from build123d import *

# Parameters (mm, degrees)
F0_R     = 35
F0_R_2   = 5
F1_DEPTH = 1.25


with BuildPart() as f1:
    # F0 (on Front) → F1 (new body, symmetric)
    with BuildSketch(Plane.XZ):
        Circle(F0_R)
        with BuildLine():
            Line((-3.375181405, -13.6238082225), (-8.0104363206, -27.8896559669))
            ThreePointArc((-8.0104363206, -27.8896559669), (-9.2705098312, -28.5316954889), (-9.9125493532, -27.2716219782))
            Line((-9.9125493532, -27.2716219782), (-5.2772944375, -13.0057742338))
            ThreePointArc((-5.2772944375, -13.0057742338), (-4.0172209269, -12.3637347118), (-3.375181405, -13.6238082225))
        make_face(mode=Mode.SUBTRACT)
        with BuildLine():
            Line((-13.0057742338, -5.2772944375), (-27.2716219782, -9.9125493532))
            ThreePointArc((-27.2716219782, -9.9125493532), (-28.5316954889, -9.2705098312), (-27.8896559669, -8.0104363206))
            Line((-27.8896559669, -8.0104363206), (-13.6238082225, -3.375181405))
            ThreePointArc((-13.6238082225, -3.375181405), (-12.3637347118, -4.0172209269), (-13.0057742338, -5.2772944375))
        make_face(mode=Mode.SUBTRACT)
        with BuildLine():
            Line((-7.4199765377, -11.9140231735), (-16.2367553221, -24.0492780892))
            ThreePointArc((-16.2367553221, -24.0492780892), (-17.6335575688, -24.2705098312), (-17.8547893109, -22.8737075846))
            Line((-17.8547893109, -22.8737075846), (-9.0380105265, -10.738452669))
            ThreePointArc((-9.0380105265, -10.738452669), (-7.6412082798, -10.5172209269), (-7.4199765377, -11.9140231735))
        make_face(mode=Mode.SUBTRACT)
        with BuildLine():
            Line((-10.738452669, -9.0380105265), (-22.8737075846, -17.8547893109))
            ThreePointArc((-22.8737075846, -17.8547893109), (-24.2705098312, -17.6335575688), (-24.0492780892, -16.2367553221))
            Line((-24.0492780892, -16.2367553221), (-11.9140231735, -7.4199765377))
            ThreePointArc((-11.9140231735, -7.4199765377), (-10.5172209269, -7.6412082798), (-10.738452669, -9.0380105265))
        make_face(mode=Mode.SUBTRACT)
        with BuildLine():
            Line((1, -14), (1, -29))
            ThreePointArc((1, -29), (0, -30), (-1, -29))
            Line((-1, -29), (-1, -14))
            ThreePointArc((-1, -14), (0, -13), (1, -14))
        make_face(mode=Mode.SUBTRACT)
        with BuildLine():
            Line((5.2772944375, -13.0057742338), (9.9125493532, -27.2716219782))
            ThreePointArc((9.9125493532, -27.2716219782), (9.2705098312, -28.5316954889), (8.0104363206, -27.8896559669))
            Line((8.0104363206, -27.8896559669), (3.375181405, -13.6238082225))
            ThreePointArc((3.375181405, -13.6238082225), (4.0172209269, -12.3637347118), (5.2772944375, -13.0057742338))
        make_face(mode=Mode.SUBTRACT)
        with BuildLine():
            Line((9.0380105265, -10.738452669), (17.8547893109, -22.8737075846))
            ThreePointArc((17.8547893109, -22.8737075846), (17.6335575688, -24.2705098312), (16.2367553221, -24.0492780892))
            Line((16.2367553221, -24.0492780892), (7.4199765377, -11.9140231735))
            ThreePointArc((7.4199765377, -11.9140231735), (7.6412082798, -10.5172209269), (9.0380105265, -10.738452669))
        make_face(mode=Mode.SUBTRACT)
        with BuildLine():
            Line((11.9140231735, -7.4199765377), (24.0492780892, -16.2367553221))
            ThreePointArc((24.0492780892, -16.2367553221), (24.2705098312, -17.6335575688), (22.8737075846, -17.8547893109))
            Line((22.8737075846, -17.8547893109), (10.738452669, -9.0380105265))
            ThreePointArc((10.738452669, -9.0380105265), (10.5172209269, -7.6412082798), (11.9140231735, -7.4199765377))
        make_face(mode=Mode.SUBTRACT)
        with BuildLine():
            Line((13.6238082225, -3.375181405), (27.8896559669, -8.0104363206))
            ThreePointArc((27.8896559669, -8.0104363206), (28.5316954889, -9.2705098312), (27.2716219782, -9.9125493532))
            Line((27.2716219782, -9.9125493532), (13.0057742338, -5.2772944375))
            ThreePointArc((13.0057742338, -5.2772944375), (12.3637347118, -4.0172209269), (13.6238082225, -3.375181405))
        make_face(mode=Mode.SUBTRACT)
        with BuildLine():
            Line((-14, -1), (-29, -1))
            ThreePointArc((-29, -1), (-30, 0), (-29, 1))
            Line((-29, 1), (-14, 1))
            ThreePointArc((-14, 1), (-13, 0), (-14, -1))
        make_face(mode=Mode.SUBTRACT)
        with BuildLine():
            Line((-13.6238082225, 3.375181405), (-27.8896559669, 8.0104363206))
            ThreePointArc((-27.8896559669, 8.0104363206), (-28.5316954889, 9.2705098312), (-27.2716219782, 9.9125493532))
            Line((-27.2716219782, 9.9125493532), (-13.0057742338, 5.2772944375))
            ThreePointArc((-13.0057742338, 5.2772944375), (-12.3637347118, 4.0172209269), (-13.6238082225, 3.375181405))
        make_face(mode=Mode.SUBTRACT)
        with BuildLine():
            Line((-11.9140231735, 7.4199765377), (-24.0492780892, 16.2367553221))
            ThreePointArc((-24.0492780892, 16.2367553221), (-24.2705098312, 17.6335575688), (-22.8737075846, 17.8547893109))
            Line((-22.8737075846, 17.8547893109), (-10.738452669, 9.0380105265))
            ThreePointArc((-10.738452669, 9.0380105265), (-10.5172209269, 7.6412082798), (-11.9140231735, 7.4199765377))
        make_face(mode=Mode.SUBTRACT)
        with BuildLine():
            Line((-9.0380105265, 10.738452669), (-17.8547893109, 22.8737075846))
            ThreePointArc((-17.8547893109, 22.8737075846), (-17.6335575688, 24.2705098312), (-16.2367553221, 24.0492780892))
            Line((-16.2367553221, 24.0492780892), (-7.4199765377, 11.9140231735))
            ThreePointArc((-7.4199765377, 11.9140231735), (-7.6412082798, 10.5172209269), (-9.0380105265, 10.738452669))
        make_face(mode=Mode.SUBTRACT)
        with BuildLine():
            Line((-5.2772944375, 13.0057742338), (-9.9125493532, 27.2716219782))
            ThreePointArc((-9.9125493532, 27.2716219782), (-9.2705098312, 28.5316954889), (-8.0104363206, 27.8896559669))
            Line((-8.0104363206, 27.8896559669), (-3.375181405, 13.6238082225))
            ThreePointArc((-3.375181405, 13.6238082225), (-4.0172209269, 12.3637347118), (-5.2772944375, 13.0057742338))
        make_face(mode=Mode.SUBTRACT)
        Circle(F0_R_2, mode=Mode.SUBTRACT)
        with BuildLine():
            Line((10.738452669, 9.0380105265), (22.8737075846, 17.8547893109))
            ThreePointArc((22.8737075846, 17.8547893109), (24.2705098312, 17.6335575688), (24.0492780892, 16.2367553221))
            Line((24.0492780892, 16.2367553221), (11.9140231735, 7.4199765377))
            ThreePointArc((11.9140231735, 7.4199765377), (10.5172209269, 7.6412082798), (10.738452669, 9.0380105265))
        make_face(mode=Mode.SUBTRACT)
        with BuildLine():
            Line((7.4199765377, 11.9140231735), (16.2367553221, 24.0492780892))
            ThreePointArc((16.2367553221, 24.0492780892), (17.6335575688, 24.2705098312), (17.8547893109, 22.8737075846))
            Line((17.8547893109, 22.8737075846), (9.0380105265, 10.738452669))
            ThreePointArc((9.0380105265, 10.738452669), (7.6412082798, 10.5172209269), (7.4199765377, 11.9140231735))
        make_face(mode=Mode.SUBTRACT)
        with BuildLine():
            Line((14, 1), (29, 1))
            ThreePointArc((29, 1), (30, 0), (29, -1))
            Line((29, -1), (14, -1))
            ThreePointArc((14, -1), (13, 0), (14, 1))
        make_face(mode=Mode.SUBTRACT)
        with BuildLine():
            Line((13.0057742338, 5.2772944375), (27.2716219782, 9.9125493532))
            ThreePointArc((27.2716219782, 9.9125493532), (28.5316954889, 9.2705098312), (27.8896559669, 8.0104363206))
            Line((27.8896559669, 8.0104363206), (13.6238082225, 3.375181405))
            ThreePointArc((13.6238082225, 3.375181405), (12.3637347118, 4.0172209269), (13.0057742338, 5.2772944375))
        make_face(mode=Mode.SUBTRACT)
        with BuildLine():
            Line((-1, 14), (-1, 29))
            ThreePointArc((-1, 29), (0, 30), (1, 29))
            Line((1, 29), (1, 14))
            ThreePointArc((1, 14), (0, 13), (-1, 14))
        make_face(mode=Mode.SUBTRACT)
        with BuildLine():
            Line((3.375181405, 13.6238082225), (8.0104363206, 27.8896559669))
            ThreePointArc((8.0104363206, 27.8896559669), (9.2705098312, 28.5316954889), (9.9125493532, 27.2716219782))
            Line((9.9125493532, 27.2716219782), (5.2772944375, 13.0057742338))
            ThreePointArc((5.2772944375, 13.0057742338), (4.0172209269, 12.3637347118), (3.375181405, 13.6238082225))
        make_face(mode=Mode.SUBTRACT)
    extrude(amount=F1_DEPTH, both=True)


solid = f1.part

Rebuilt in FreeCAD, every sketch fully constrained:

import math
import FreeCAD as App
import Part
import Sketcher
from FreeCAD import Vector
Q = App.Units.Quantity

doc = App.newDocument("Part")
body = doc.addObject("PartDesign::Body", "Body")

sketch1 = body.newObject("Sketcher::SketchObject", "Sketch")
sketch1.AttachmentSupport = (doc.getObject("XZ_Plane"), [""])
sketch1.MapMode = "FlatFace"
sketch1.addGeometry([
    Part.Circle(Vector(0, 0, 0), Vector(0, 0, 1), 35),
    Part.ArcOfCircle(Part.Circle(Vector(-8.228994, -11.326238, 0), Vector(0, 0, 1), 1), math.radians(-36), math.radians(144)),
    Part.LineSegment(Vector(-7.419977, -11.914023, 0), Vector(-16.236755, -24.049278, 0)),
    Part.ArcOfCircle(Part.Circle(Vector(-17.045772, -23.461493, 0), Vector(0, 0, 1), 1), math.radians(144), math.radians(324)),
    Part.LineSegment(Vector(-17.854789, -22.873708, 0), Vector(-9.038011, -10.738453, 0)),
    Part.ArcOfCircle(Part.Circle(Vector(-4.326238, -13.314791, 0), Vector(0, 0, 1), 1), math.radians(-18), math.radians(162)),
    Part.LineSegment(Vector(-3.375181, -13.623808, 0), Vector(-8.010436, -27.889656, 0)),
    Part.ArcOfCircle(Part.Circle(Vector(-8.961493, -27.580639, 0), Vector(0, 0, 1), 1), math.radians(162), math.radians(342)),
    Part.LineSegment(Vector(-9.912549, -27.271622, 0), Vector(-5.277294, -13.005774, 0)),
    Part.ArcOfCircle(Part.Circle(Vector(-11.326238, -8.228994, 0), Vector(0, 0, 1), 1), math.radians(-54), math.radians(126)),
    Part.LineSegment(Vector(-10.738453, -9.038011, 0), Vector(-22.873708, -17.854789, 0)),
    Part.ArcOfCircle(Part.Circle(Vector(-23.461493, -17.045772, 0), Vector(0, 0, 1), 1), math.radians(126), math.radians(306)),
    Part.LineSegment(Vector(-24.049278, -16.236755, 0), Vector(-11.914023, -7.419977, 0)),
    Part.ArcOfCircle(Part.Circle(Vector(-13.314791, -4.326238, 0), Vector(0, 0, 1), 1), math.radians(-72), math.radians(108)),
    Part.LineSegment(Vector(-13.005774, -5.277294, 0), Vector(-27.271622, -9.912549, 0)),
    Part.ArcOfCircle(Part.Circle(Vector(-27.580639, -8.961493, 0), Vector(0, 0, 1), 1), math.radians(108), math.radians(288)),
    Part.LineSegment(Vector(-27.889656, -8.010436, 0), Vector(-13.623808, -3.375181, 0)),
    Part.ArcOfCircle(Part.Circle(Vector(0, -14, 0), Vector(0, 0, 1), 1), math.radians(0), math.radians(180)),
    Part.LineSegment(Vector(1, -14, 0), Vector(1, -29, 0)),
    Part.ArcOfCircle(Part.Circle(Vector(0, -29, 0), Vector(0, 0, 1), 1), math.radians(180), math.radians(360)),
    Part.LineSegment(Vector(-1, -29, 0), Vector(-1, -14, 0)),
    Part.ArcOfCircle(Part.Circle(Vector(4.326238, -13.314791, 0), Vector(0, 0, 1), 1), math.radians(18), math.radians(198)),
    Part.LineSegment(Vector(5.277294, -13.005774, 0), Vector(9.912549, -27.271622, 0)),
    Part.ArcOfCircle(Part.Circle(Vector(8.961493, -27.580639, 0), Vector(0, 0, 1), 1), math.radians(-162), math.radians(18)),
    Part.LineSegment(Vector(8.010436, -27.889656, 0), Vector(3.375181, -13.623808, 0)),
    Part.ArcOfCircle(Part.Circle(Vector(8.228994, -11.326238, 0), Vector(0, 0, 1), 1), math.radians(36), math.radians(216)),
    Part.LineSegment(Vector(9.038011, -10.738453, 0), Vector(17.854789, -22.873708, 0)),
    Part.ArcOfCircle(Part.Circle(Vector(17.045772, -23.461493, 0), Vector(0, 0, 1), 1), math.radians(-144), math.radians(36)),
    Part.LineSegment(Vector(16.236755, -24.049278, 0), Vector(7.419977, -11.914023, 0)),
    Part.ArcOfCircle(Part.Circle(Vector(11.326238, -8.228994, 0), Vector(0, 0, 1), 1), math.radians(54), math.radians(234)),
    Part.LineSegment(Vector(11.914023, -7.419977, 0), Vector(24.049278, -16.236755, 0)),
    Part.ArcOfCircle(Part.Circle(Vector(23.461493, -17.045772, 0), Vector(0, 0, 1), 1), math.radians(-126), math.radians(54)),
    Part.LineSegment(Vector(22.873708, -17.854789, 0), Vector(10.738453, -9.038011, 0)),
    Part.ArcOfCircle(Part.Circle(Vector(13.314791, -4.326238, 0), Vector(0, 0, 1), 1), math.radians(72), math.radians(252)),
    Part.LineSegment(Vector(13.623808, -3.375181, 0), Vector(27.889656, -8.010436, 0)),
    Part.ArcOfCircle(Part.Circle(Vector(27.580639, -8.961493, 0), Vector(0, 0, 1), 1), math.radians(-108), math.radians(72)),
    Part.LineSegment(Vector(27.271622, -9.912549, 0), Vector(13.005774, -5.277294, 0)),
    Part.ArcOfCircle(Part.Circle(Vector(-14, 0, 0), Vector(0, 0, 1), 1), math.radians(-90), math.radians(90)),
    Part.LineSegment(Vector(-14, -1, 0), Vector(-29, -1, 0)),
    Part.ArcOfCircle(Part.Circle(Vector(-29, 0, 0), Vector(0, 0, 1), 1), math.radians(90), math.radians(270)),
    Part.LineSegment(Vector(-29, 1, 0), Vector(-14, 1, 0)),
    Part.ArcOfCircle(Part.Circle(Vector(-13.314791, 4.326238, 0), Vector(0, 0, 1), 1), math.radians(-108), math.radians(72)),
    Part.LineSegment(Vector(-13.623808, 3.375181, 0), Vector(-27.889656, 8.010436, 0)),
    Part.ArcOfCircle(Part.Circle(Vector(-27.580639, 8.961493, 0), Vector(0, 0, 1), 1), math.radians(72), math.radians(252)),
    Part.LineSegment(Vector(-27.271622, 9.912549, 0), Vector(-13.005774, 5.277294, 0)),
    Part.ArcOfCircle(Part.Circle(Vector(-11.326238, 8.228994, 0), Vector(0, 0, 1), 1), math.radians(-126), math.radians(54)),
    Part.LineSegment(Vector(-11.914023, 7.419977, 0), Vector(-24.049278, 16.236755, 0)),
    Part.ArcOfCircle(Part.Circle(Vector(-23.461493, 17.045772, 0), Vector(0, 0, 1), 1), math.radians(54), math.radians(234)),
    Part.LineSegment(Vector(-22.873708, 17.854789, 0), Vector(-10.738453, 9.038011, 0)),
    Part.ArcOfCircle(Part.Circle(Vector(-8.228994, 11.326238, 0), Vector(0, 0, 1), 1), math.radians(-144), math.radians(36)),
    Part.LineSegment(Vector(-9.038011, 10.738453, 0), Vector(-17.854789, 22.873708, 0)),
    Part.ArcOfCircle(Part.Circle(Vector(-17.045772, 23.461493, 0), Vector(0, 0, 1), 1), math.radians(36), math.radians(216)),
    Part.LineSegment(Vector(-16.236755, 24.049278, 0), Vector(-7.419977, 11.914023, 0)),
    Part.ArcOfCircle(Part.Circle(Vector(-4.326238, 13.314791, 0), Vector(0, 0, 1), 1), math.radians(-162), math.radians(18)),
    Part.LineSegment(Vector(-5.277294, 13.005774, 0), Vector(-9.912549, 27.271622, 0)),
    Part.ArcOfCircle(Part.Circle(Vector(-8.961493, 27.580639, 0), Vector(0, 0, 1), 1), math.radians(18), math.radians(198)),
    Part.LineSegment(Vector(-8.010436, 27.889656, 0), Vector(-3.375181, 13.623808, 0)),
    Part.Circle(Vector(0, 0, 0), Vector(0, 0, 1), 5),
    Part.ArcOfCircle(Part.Circle(Vector(14, 0, 0), Vector(0, 0, 1), 1), math.radians(90), math.radians(270)),
    Part.LineSegment(Vector(14, 1, 0), Vector(29, 1, 0)),
    Part.ArcOfCircle(Part.Circle(Vector(29, 0, 0), Vector(0, 0, 1), 1), math.radians(-90), math.radians(90)),
    Part.LineSegment(Vector(29, -1, 0), Vector(14, -1, 0)),
    Part.ArcOfCircle(Part.Circle(Vector(13.314791, 4.326238, 0), Vector(0, 0, 1), 1), math.radians(108), math.radians(288)),
    Part.LineSegment(Vector(13.005774, 5.277294, 0), Vector(27.271622, 9.912549, 0)),
    Part.ArcOfCircle(Part.Circle(Vector(27.580639, 8.961493, 0), Vector(0, 0, 1), 1), math.radians(-72), math.radians(108)),
    Part.LineSegment(Vector(27.889656, 8.010436, 0), Vector(13.623808, 3.375181, 0)),
    Part.ArcOfCircle(Part.Circle(Vector(11.326238, 8.228994, 0), Vector(0, 0, 1), 1), math.radians(126), math.radians(306)),
    Part.LineSegment(Vector(10.738453, 9.038011, 0), Vector(22.873708, 17.854789, 0)),
    Part.ArcOfCircle(Part.Circle(Vector(23.461493, 17.045772, 0), Vector(0, 0, 1), 1), math.radians(-54), math.radians(126)),
    Part.LineSegment(Vector(24.049278, 16.236755, 0), Vector(11.914023, 7.419977, 0)),
    Part.ArcOfCircle(Part.Circle(Vector(0, 14, 0), Vector(0, 0, 1), 1), math.radians(180), math.radians(360)),
    Part.LineSegment(Vector(-1, 14, 0), Vector(-1, 29, 0)),
    Part.ArcOfCircle(Part.Circle(Vector(0, 29, 0), Vector(0, 0, 1), 1), math.radians(0), math.radians(180)),
    Part.LineSegment(Vector(1, 29, 0), Vector(1, 14, 0)),
    Part.ArcOfCircle(Part.Circle(Vector(4.326238, 13.314791, 0), Vector(0, 0, 1), 1), math.radians(162), math.radians(342)),
    Part.LineSegment(Vector(3.375181, 13.623808, 0), Vector(8.010436, 27.889656, 0)),
    Part.ArcOfCircle(Part.Circle(Vector(8.961493, 27.580639, 0), Vector(0, 0, 1), 1), math.radians(-18), math.radians(162)),
    Part.LineSegment(Vector(9.912549, 27.271622, 0), Vector(5.277294, 13.005774, 0)),
    Part.ArcOfCircle(Part.Circle(Vector(8.228994, 11.326238, 0), Vector(0, 0, 1), 1), math.radians(144), math.radians(324)),
    Part.LineSegment(Vector(7.419977, 11.914023, 0), Vector(16.236755, 24.049278, 0)),
    Part.ArcOfCircle(Part.Circle(Vector(17.045772, 23.461493, 0), Vector(0, 0, 1), 1), math.radians(-36), math.radians(144)),
    Part.LineSegment(Vector(17.854789, 22.873708, 0), Vector(9.038011, 10.738453, 0)),
], False)
sketch1.addConstraint([
    Sketcher.Constraint("Tangent", 1, 1, 2, 1),
    Sketcher.Constraint("Tangent", 2, 2, 3, 2),
    Sketcher.Constraint("Tangent", 3, 1, 4, 1),
    Sketcher.Constraint("Tangent", 4, 2, 1, 2),
    Sketcher.Constraint("Tangent", 5, 1, 6, 1),
    Sketcher.Constraint("Tangent", 6, 2, 7, 2),
    Sketcher.Constraint("Tangent", 7, 1, 8, 1),
    Sketcher.Constraint("Tangent", 8, 2, 5, 2),
    Sketcher.Constraint("Tangent", 9, 1, 10, 1),
    Sketcher.Constraint("Tangent", 10, 2, 11, 2),
    Sketcher.Constraint("Tangent", 11, 1, 12, 1),
    Sketcher.Constraint("Tangent", 12, 2, 9, 2),
    Sketcher.Constraint("Tangent", 13, 1, 14, 1),
    Sketcher.Constraint("Tangent", 14, 2, 15, 2),
    Sketcher.Constraint("Tangent", 15, 1, 16, 1),
    Sketcher.Constraint("Tangent", 16, 2, 13, 2),
    Sketcher.Constraint("Tangent", 17, 1, 18, 1),
    Sketcher.Constraint("Tangent", 18, 2, 19, 2),
    Sketcher.Constraint("Tangent", 19, 1, 20, 1),
    Sketcher.Constraint("Tangent", 20, 2, 17, 2),
    Sketcher.Constraint("Tangent", 21, 1, 22, 1),
    Sketcher.Constraint("Tangent", 22, 2, 23, 2),
    Sketcher.Constraint("Tangent", 23, 1, 24, 1),
    Sketcher.Constraint("Tangent", 24, 2, 21, 2),
    Sketcher.Constraint("Tangent", 25, 1, 26, 1),
    Sketcher.Constraint("Tangent", 26, 2, 27, 2),
    Sketcher.Constraint("Tangent", 27, 1, 28, 1),
    Sketcher.Constraint("Tangent", 28, 2, 25, 2),
    Sketcher.Constraint("Tangent", 29, 1, 30, 1),
    Sketcher.Constraint("Tangent", 30, 2, 31, 2),
    Sketcher.Constraint("Tangent", 31, 1, 32, 1),
    Sketcher.Constraint("Tangent", 32, 2, 29, 2),
    Sketcher.Constraint("Tangent", 33, 1, 34, 1),
    Sketcher.Constraint("Tangent", 34, 2, 35, 2),
    Sketcher.Constraint("Tangent", 35, 1, 36, 1),
    Sketcher.Constraint("Tangent", 36, 2, 33, 2),
    Sketcher.Constraint("Tangent", 37, 1, 38, 1),
    Sketcher.Constraint("Tangent", 38, 2, 39, 2),
    Sketcher.Constraint("Tangent", 39, 1, 40, 1),
    Sketcher.Constraint("Tangent", 40, 2, 37, 2),
    Sketcher.Constraint("Tangent", 41, 1, 42, 1),
    Sketcher.Constraint("Tangent", 42, 2, 43, 2),
    Sketcher.Constraint("Tangent", 43, 1, 44, 1),
    Sketcher.Constraint("Tangent", 44, 2, 41, 2),
    Sketcher.Constraint("Tangent", 45, 1, 46, 1),
    Sketcher.Constraint("Tangent", 46, 2, 47, 2),
    Sketcher.Constraint("Tangent", 47, 1, 48, 1),
    Sketcher.Constraint("Tangent", 48, 2, 45, 2),
    Sketcher.Constraint("Tangent", 49, 1, 50, 1),
    Sketcher.Constraint("Tangent", 50, 2, 51, 2),
    Sketcher.Constraint("Tangent", 51, 1, 52, 1),
    Sketcher.Constraint("Tangent", 52, 2, 49, 2),
    Sketcher.Constraint("Tangent", 53, 1, 54, 1),
    Sketcher.Constraint("Tangent", 54, 2, 55, 2),
    Sketcher.Constraint("Tangent", 55, 1, 56, 1),
    Sketcher.Constraint("Tangent", 56, 2, 53, 2),
    Sketcher.Constraint("Tangent", 58, 1, 59, 1),
    Sketcher.Constraint("Tangent", 59, 2, 60, 2),
    Sketcher.Constraint("Tangent", 60, 1, 61, 1),
    Sketcher.Constraint("Tangent", 61, 2, 58, 2),
    Sketcher.Constraint("Tangent", 62, 1, 63, 1),
    Sketcher.Constraint("Tangent", 63, 2, 64, 2),
    Sketcher.Constraint("Tangent", 64, 1, 65, 1),
    Sketcher.Constraint("Tangent", 65, 2, 62, 2),
    Sketcher.Constraint("Tangent", 66, 1, 67, 1),
    Sketcher.Constraint("Tangent", 67, 2, 68, 2),
    Sketcher.Constraint("Tangent", 68, 1, 69, 1),
    Sketcher.Constraint("Tangent", 69, 2, 66, 2),
    Sketcher.Constraint("Tangent", 70, 1, 71, 1),
    Sketcher.Constraint("Tangent", 71, 2, 72, 2),
    Sketcher.Constraint("Tangent", 72, 1, 73, 1),
    Sketcher.Constraint("Tangent", 73, 2, 70, 2),
    Sketcher.Constraint("Tangent", 74, 1, 75, 1),
    Sketcher.Constraint("Tangent", 75, 2, 76, 2),
    Sketcher.Constraint("Tangent", 76, 1, 77, 1),
    Sketcher.Constraint("Tangent", 77, 2, 74, 2),
    Sketcher.Constraint("Tangent", 78, 1, 79, 1),
    Sketcher.Constraint("Tangent", 79, 2, 80, 2),
    Sketcher.Constraint("Tangent", 80, 1, 81, 1),
    Sketcher.Constraint("Tangent", 81, 2, 78, 2),
    Sketcher.Constraint("Vertical", 18),
    Sketcher.Constraint("Vertical", 20),
    Sketcher.Constraint("Horizontal", 38),
    Sketcher.Constraint("Horizontal", 40),
    Sketcher.Constraint("Horizontal", 59),
    Sketcher.Constraint("Horizontal", 61),
    Sketcher.Constraint("Vertical", 71),
    Sketcher.Constraint("Vertical", 73),
    Sketcher.Constraint("Coincident", 0, 3, -1, 1),
    Sketcher.Constraint("Coincident", 57, 3, -1, 1),
    Sketcher.Constraint("Equal", 1, 3),
    Sketcher.Constraint("Equal", 3, 5),
    Sketcher.Constraint("Equal", 5, 7),
    Sketcher.Constraint("Equal", 7, 9),
    Sketcher.Constraint("Equal", 9, 11),
    Sketcher.Constraint("Equal", 11, 13),
    Sketcher.Constraint("Equal", 13, 15),
    Sketcher.Constraint("Equal", 15, 17),
    Sketcher.Constraint("Equal", 19, 21),
    Sketcher.Constraint("Equal", 21, 23),
    Sketcher.Constraint("Equal", 23, 25),
    Sketcher.Constraint("Equal", 25, 27),
    Sketcher.Constraint("Equal", 27, 29),
    Sketcher.Constraint("Equal", 29, 31),
    Sketcher.Constraint("Equal", 31, 33),
    Sketcher.Constraint("Equal", 33, 35),
    Sketcher.Constraint("Equal", 35, 37),
    Sketcher.Constraint("Equal", 39, 41),
    Sketcher.Constraint("Equal", 41, 43),
    Sketcher.Constraint("Equal", 43, 45),
    Sketcher.Constraint("Equal", 45, 47),
    Sketcher.Constraint("Equal", 47, 49),
    Sketcher.Constraint("Equal", 49, 51),
    Sketcher.Constraint("Equal", 51, 53),
    Sketcher.Constraint("Equal", 53, 55),
    Sketcher.Constraint("Equal", 55, 58),
    Sketcher.Constraint("Equal", 60, 62),
    Sketcher.Constraint("Equal", 62, 64),
    Sketcher.Constraint("Equal", 64, 66),
    Sketcher.Constraint("Equal", 66, 68),
    Sketcher.Constraint("Equal", 68, 70),
    Sketcher.Constraint("Equal", 72, 74),
    Sketcher.Constraint("Equal", 74, 76),
    Sketcher.Constraint("Equal", 76, 78),
    Sketcher.Constraint("Equal", 78, 80),
    Sketcher.Constraint("Symmetric", 33, 3, 41, 3, -1, 1),
    Sketcher.Constraint("Symmetric", 35, 3, 43, 3, -1, 1),
    Sketcher.Constraint("Symmetric", 29, 3, 45, 3, -1, 1),
    Sketcher.Constraint("Symmetric", 31, 3, 47, 3, -1, 1),
    Sketcher.Constraint("Symmetric", 25, 3, 49, 3, -1, 1),
    Sketcher.Constraint("Symmetric", 27, 3, 51, 3, -1, 1),
    Sketcher.Constraint("Symmetric", 21, 3, 53, 3, -1, 1),
    Sketcher.Constraint("Symmetric", 23, 3, 55, 3, -1, 1),
    Sketcher.Constraint("Symmetric", 37, 3, 58, 3, -1, 1),
    Sketcher.Constraint("Symmetric", 13, 3, 62, 3, -1, 1),
    Sketcher.Constraint("Symmetric", 15, 3, 64, 3, -1, 1),
    Sketcher.Constraint("Symmetric", 9, 3, 66, 3, -1, 1),
    Sketcher.Constraint("Symmetric", 11, 3, 68, 3, -1, 1),
    Sketcher.Constraint("Symmetric", 17, 3, 70, 3, -1, 1),
    Sketcher.Constraint("Symmetric", 5, 3, 74, 3, -1, 1),
    Sketcher.Constraint("Symmetric", 7, 3, 76, 3, -1, 1),
    Sketcher.Constraint("Symmetric", 1, 3, 78, 3, -1, 1),
    Sketcher.Constraint("Symmetric", 3, 3, 80, 3, -1, 1),
    Sketcher.Constraint("Symmetric", 5, 3, 21, 3, -2),
    Sketcher.Constraint("Symmetric", 7, 3, 23, 3, -2),
    Sketcher.Constraint("Symmetric", 1, 3, 25, 3, -2),
    Sketcher.Constraint("Symmetric", 3, 3, 27, 3, -2),
    Sketcher.Constraint("Symmetric", 9, 3, 29, 3, -2),
    Sketcher.Constraint("Symmetric", 11, 3, 31, 3, -2),
    Sketcher.Constraint("Symmetric", 13, 3, 33, 3, -2),
    Sketcher.Constraint("Symmetric", 15, 3, 35, 3, -2),
    Sketcher.Constraint("Symmetric", 39, 3, 60, 3, -2),
    Sketcher.Constraint("Symmetric", 19, 3, 72, 3, -1),
    Sketcher.Constraint("Perpendicular", 16, 22),
    Sketcher.Constraint("Perpendicular", 12, 26),
    Sketcher.Constraint("Equal", 61, 18),
    Sketcher.Constraint("Equal", 4, 6),
    Sketcher.Constraint("Equal", 8, 10),
    Sketcher.Constraint("Equal", 12, 14),
    Sketcher.Constraint("Diameter", 0, Q("70 mm")),
    Sketcher.Constraint("Diameter", 57, Q("10 mm")),
    Sketcher.Constraint("Radius", 1, Q("1 mm")),
    Sketcher.Constraint("DistanceX", 38, 2, 38, 1, Q("15 mm")),
    Sketcher.Constraint("Angle", 2, Q("-126 deg")),
    Sketcher.Constraint("Angle", 6, Q("-108 deg")),
    Sketcher.Constraint("Distance", 2, Q("15 mm")),
    Sketcher.Constraint("DistanceY", 17, 3, -1, 1, Q("14 mm")),
    Sketcher.Constraint("DistanceX", 37, 3, -1, 1, Q("14 mm")),
    Sketcher.Constraint("DistanceY", 5, 3, -1, 1, Q("13.314791 mm")),
    Sketcher.Constraint("DistanceX", 13, 3, -1, 1, Q("13.314791 mm")),
    Sketcher.Constraint("DistanceY", 2, 2, -1, 1, Q("24.049278 mm")),
    Sketcher.Constraint("DistanceX", 3, 1, -1, 1, Q("17.854789 mm")),
    Sketcher.Constraint("DistanceX", 5, 1, -1, 1, Q("3.375181 mm")),
    Sketcher.Constraint("DistanceY", 9, 1, -1, 1, Q("9.038011 mm")),
    Sketcher.Constraint("DistanceX", 11, 1, -1, 1, Q("24.049278 mm")),
    Sketcher.Constraint("DistanceY", 14, 2, -1, 1, Q("9.912549 mm")),
])
pad1 = body.newObject("PartDesign::Pad", "Pad")
pad1.Profile = sketch1
pad1.Length = 2.5
pad1.Midplane = True

doc.recompute()
